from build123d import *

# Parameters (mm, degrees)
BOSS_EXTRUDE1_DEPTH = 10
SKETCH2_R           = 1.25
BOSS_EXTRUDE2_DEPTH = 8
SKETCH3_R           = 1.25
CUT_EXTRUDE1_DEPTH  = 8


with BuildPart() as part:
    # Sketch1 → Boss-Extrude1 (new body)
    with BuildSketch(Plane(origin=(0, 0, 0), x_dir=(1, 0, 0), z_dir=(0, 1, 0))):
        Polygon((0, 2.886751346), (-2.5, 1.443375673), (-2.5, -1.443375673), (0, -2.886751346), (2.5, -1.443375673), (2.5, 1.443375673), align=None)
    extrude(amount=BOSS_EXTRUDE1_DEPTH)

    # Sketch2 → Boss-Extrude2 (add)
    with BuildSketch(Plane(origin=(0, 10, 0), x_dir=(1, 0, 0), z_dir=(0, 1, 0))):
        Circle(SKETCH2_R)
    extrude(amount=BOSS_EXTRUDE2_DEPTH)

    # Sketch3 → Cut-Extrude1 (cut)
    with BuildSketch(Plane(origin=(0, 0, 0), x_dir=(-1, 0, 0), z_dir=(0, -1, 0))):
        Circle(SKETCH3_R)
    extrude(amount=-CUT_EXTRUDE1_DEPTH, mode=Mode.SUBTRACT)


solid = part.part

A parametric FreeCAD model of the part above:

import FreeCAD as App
import Part
import Sketcher
from FreeCAD import Vector
Q = App.Units.Quantity

doc = App.newDocument("Part")
body = doc.addObject("PartDesign::Body", "Body")

# Sketch on XZ plane
sketch1 = body.newObject("Sketcher::SketchObject", "Sketch")
sketch1.AttachmentSupport = (doc.getObject("XZ_Plane"), [""])
sketch1.MapMode = "FlatFace"
sketch1.addGeometry(Part.LineSegment(Vector(0, -2.886751, 0), Vector(-2.5, -1.443376, 0)), False)
sketch1.addGeometry(Part.LineSegment(Vector(-2.5, -1.443376, 0), Vector(-2.5, 1.443376, 0)), False)
sketch1.addGeometry(Part.LineSegment(Vector(-2.5, 1.443376, 0), Vector(0, 2.886751, 0)), False)
sketch1.addGeometry(Part.LineSegment(Vector(0, 2.886751, 0), Vector(2.5, 1.443376, 0)), False)
sketch1.addGeometry(Part.LineSegment(Vector(2.5, 1.443376, 0), Vector(2.5, -1.443376, 0)), False)
sketch1.addGeometry(Part.LineSegment(Vector(2.5, -1.443376, 0), Vector(0, -2.886751, 0)), False)
sketch1.addConstraint(Sketcher.Constraint("Coincident", 0, 2, 1, 1))
sketch1.addConstraint(Sketcher.Constraint("Coincident", 1, 2, 2, 1))
sketch1.addConstraint(Sketcher.Constraint("Coincident", 2, 2, 3, 1))
sketch1.addConstraint(Sketcher.Constraint("Coincident", 3, 2, 4, 1))
sketch1.addConstraint(Sketcher.Constraint("Coincident", 4, 2, 5, 1))
sketch1.addConstraint(Sketcher.Constraint("Coincident", 5, 2, 0, 1))
sketch1.addConstraint(Sketcher.Constraint("Vertical", 1))
sketch1.addConstraint(Sketcher.Constraint("Vertical", 4))
sketch1.addConstraint(Sketcher.Constraint("Symmetric", 0, 2, 3, 2, -1, 1))
sketch1.addConstraint(Sketcher.Constraint("Symmetric", 2, 2, 5, 2, -1, 1))
sketch1.addConstraint(Sketcher.Constraint("PointOnObject", 2, 2, -2))
sketch1.addConstraint(Sketcher.Constraint("Parallel", 2, 5))
sketch1.addConstraint(Sketcher.Constraint("Horizontal", 1, 2, 3, 2))
sketch1.addConstraint(Sketcher.Constraint("Angle", 0, Q("150 deg")))
sketch1.addConstraint(Sketcher.Constraint("DistanceX", 1, 2, 3, 2, 5.0))
sketch1.addConstraint(Sketcher.Constraint("DistanceY", 1, 1, 1, 2, 2.886751))
pad1 = body.newObject("PartDesign::Pad", "Pad")
pad1.Profile = sketch1
pad1.Length = 10
pad1.Reversed = True

# Sketch on XZ plane
sketch2 = body.newObject("Sketcher::SketchObject", "Sketch001")
sketch2.AttachmentSupport = (doc.getObject("XZ_Plane"), [""])
sketch2.MapMode = "FlatFace"
sketch2.AttachmentOffset = App.Placement(Vector(0, 0, -10), App.Rotation())
sketch2.addGeometry(Part.Circle(Vector(0, 0, 0), Vector(0, 0, 1), 1.25), False)
sketch2.addConstraint(Sketcher.Constraint("Coincident", 0, 3, -1, 1))
sketch2.addConstraint(Sketcher.Constraint("Diameter", 0, 2.5))
pad2 = body.newObject("PartDesign::Pad", "Pad001")
pad2.Profile = sketch2
pad2.Length = 8
pad2.Reversed = True

# Sketch on XZ plane
sketch3 = body.newObject("Sketcher::SketchObject", "Sketch002")
sketch3.AttachmentSupport = (doc.getObject("XZ_Plane"), [""])
sketch3.MapMode = "FlatFace"
sketch3.addGeometry(Part.Circle(Vector(0, 0, 0), Vector(0, 0, 1), 1.25), False)
sketch3.addConstraint(Sketcher.Constraint("Coincident", 0, 3, -1, 1))
sketch3.addConstraint(Sketcher.Constraint("Diameter", 0, 2.5))
pocket1 = body.newObject("PartDesign::Pocket", "Pocket")
pocket1.Profile = sketch3
pocket1.Length = 8

doc.recompute()
